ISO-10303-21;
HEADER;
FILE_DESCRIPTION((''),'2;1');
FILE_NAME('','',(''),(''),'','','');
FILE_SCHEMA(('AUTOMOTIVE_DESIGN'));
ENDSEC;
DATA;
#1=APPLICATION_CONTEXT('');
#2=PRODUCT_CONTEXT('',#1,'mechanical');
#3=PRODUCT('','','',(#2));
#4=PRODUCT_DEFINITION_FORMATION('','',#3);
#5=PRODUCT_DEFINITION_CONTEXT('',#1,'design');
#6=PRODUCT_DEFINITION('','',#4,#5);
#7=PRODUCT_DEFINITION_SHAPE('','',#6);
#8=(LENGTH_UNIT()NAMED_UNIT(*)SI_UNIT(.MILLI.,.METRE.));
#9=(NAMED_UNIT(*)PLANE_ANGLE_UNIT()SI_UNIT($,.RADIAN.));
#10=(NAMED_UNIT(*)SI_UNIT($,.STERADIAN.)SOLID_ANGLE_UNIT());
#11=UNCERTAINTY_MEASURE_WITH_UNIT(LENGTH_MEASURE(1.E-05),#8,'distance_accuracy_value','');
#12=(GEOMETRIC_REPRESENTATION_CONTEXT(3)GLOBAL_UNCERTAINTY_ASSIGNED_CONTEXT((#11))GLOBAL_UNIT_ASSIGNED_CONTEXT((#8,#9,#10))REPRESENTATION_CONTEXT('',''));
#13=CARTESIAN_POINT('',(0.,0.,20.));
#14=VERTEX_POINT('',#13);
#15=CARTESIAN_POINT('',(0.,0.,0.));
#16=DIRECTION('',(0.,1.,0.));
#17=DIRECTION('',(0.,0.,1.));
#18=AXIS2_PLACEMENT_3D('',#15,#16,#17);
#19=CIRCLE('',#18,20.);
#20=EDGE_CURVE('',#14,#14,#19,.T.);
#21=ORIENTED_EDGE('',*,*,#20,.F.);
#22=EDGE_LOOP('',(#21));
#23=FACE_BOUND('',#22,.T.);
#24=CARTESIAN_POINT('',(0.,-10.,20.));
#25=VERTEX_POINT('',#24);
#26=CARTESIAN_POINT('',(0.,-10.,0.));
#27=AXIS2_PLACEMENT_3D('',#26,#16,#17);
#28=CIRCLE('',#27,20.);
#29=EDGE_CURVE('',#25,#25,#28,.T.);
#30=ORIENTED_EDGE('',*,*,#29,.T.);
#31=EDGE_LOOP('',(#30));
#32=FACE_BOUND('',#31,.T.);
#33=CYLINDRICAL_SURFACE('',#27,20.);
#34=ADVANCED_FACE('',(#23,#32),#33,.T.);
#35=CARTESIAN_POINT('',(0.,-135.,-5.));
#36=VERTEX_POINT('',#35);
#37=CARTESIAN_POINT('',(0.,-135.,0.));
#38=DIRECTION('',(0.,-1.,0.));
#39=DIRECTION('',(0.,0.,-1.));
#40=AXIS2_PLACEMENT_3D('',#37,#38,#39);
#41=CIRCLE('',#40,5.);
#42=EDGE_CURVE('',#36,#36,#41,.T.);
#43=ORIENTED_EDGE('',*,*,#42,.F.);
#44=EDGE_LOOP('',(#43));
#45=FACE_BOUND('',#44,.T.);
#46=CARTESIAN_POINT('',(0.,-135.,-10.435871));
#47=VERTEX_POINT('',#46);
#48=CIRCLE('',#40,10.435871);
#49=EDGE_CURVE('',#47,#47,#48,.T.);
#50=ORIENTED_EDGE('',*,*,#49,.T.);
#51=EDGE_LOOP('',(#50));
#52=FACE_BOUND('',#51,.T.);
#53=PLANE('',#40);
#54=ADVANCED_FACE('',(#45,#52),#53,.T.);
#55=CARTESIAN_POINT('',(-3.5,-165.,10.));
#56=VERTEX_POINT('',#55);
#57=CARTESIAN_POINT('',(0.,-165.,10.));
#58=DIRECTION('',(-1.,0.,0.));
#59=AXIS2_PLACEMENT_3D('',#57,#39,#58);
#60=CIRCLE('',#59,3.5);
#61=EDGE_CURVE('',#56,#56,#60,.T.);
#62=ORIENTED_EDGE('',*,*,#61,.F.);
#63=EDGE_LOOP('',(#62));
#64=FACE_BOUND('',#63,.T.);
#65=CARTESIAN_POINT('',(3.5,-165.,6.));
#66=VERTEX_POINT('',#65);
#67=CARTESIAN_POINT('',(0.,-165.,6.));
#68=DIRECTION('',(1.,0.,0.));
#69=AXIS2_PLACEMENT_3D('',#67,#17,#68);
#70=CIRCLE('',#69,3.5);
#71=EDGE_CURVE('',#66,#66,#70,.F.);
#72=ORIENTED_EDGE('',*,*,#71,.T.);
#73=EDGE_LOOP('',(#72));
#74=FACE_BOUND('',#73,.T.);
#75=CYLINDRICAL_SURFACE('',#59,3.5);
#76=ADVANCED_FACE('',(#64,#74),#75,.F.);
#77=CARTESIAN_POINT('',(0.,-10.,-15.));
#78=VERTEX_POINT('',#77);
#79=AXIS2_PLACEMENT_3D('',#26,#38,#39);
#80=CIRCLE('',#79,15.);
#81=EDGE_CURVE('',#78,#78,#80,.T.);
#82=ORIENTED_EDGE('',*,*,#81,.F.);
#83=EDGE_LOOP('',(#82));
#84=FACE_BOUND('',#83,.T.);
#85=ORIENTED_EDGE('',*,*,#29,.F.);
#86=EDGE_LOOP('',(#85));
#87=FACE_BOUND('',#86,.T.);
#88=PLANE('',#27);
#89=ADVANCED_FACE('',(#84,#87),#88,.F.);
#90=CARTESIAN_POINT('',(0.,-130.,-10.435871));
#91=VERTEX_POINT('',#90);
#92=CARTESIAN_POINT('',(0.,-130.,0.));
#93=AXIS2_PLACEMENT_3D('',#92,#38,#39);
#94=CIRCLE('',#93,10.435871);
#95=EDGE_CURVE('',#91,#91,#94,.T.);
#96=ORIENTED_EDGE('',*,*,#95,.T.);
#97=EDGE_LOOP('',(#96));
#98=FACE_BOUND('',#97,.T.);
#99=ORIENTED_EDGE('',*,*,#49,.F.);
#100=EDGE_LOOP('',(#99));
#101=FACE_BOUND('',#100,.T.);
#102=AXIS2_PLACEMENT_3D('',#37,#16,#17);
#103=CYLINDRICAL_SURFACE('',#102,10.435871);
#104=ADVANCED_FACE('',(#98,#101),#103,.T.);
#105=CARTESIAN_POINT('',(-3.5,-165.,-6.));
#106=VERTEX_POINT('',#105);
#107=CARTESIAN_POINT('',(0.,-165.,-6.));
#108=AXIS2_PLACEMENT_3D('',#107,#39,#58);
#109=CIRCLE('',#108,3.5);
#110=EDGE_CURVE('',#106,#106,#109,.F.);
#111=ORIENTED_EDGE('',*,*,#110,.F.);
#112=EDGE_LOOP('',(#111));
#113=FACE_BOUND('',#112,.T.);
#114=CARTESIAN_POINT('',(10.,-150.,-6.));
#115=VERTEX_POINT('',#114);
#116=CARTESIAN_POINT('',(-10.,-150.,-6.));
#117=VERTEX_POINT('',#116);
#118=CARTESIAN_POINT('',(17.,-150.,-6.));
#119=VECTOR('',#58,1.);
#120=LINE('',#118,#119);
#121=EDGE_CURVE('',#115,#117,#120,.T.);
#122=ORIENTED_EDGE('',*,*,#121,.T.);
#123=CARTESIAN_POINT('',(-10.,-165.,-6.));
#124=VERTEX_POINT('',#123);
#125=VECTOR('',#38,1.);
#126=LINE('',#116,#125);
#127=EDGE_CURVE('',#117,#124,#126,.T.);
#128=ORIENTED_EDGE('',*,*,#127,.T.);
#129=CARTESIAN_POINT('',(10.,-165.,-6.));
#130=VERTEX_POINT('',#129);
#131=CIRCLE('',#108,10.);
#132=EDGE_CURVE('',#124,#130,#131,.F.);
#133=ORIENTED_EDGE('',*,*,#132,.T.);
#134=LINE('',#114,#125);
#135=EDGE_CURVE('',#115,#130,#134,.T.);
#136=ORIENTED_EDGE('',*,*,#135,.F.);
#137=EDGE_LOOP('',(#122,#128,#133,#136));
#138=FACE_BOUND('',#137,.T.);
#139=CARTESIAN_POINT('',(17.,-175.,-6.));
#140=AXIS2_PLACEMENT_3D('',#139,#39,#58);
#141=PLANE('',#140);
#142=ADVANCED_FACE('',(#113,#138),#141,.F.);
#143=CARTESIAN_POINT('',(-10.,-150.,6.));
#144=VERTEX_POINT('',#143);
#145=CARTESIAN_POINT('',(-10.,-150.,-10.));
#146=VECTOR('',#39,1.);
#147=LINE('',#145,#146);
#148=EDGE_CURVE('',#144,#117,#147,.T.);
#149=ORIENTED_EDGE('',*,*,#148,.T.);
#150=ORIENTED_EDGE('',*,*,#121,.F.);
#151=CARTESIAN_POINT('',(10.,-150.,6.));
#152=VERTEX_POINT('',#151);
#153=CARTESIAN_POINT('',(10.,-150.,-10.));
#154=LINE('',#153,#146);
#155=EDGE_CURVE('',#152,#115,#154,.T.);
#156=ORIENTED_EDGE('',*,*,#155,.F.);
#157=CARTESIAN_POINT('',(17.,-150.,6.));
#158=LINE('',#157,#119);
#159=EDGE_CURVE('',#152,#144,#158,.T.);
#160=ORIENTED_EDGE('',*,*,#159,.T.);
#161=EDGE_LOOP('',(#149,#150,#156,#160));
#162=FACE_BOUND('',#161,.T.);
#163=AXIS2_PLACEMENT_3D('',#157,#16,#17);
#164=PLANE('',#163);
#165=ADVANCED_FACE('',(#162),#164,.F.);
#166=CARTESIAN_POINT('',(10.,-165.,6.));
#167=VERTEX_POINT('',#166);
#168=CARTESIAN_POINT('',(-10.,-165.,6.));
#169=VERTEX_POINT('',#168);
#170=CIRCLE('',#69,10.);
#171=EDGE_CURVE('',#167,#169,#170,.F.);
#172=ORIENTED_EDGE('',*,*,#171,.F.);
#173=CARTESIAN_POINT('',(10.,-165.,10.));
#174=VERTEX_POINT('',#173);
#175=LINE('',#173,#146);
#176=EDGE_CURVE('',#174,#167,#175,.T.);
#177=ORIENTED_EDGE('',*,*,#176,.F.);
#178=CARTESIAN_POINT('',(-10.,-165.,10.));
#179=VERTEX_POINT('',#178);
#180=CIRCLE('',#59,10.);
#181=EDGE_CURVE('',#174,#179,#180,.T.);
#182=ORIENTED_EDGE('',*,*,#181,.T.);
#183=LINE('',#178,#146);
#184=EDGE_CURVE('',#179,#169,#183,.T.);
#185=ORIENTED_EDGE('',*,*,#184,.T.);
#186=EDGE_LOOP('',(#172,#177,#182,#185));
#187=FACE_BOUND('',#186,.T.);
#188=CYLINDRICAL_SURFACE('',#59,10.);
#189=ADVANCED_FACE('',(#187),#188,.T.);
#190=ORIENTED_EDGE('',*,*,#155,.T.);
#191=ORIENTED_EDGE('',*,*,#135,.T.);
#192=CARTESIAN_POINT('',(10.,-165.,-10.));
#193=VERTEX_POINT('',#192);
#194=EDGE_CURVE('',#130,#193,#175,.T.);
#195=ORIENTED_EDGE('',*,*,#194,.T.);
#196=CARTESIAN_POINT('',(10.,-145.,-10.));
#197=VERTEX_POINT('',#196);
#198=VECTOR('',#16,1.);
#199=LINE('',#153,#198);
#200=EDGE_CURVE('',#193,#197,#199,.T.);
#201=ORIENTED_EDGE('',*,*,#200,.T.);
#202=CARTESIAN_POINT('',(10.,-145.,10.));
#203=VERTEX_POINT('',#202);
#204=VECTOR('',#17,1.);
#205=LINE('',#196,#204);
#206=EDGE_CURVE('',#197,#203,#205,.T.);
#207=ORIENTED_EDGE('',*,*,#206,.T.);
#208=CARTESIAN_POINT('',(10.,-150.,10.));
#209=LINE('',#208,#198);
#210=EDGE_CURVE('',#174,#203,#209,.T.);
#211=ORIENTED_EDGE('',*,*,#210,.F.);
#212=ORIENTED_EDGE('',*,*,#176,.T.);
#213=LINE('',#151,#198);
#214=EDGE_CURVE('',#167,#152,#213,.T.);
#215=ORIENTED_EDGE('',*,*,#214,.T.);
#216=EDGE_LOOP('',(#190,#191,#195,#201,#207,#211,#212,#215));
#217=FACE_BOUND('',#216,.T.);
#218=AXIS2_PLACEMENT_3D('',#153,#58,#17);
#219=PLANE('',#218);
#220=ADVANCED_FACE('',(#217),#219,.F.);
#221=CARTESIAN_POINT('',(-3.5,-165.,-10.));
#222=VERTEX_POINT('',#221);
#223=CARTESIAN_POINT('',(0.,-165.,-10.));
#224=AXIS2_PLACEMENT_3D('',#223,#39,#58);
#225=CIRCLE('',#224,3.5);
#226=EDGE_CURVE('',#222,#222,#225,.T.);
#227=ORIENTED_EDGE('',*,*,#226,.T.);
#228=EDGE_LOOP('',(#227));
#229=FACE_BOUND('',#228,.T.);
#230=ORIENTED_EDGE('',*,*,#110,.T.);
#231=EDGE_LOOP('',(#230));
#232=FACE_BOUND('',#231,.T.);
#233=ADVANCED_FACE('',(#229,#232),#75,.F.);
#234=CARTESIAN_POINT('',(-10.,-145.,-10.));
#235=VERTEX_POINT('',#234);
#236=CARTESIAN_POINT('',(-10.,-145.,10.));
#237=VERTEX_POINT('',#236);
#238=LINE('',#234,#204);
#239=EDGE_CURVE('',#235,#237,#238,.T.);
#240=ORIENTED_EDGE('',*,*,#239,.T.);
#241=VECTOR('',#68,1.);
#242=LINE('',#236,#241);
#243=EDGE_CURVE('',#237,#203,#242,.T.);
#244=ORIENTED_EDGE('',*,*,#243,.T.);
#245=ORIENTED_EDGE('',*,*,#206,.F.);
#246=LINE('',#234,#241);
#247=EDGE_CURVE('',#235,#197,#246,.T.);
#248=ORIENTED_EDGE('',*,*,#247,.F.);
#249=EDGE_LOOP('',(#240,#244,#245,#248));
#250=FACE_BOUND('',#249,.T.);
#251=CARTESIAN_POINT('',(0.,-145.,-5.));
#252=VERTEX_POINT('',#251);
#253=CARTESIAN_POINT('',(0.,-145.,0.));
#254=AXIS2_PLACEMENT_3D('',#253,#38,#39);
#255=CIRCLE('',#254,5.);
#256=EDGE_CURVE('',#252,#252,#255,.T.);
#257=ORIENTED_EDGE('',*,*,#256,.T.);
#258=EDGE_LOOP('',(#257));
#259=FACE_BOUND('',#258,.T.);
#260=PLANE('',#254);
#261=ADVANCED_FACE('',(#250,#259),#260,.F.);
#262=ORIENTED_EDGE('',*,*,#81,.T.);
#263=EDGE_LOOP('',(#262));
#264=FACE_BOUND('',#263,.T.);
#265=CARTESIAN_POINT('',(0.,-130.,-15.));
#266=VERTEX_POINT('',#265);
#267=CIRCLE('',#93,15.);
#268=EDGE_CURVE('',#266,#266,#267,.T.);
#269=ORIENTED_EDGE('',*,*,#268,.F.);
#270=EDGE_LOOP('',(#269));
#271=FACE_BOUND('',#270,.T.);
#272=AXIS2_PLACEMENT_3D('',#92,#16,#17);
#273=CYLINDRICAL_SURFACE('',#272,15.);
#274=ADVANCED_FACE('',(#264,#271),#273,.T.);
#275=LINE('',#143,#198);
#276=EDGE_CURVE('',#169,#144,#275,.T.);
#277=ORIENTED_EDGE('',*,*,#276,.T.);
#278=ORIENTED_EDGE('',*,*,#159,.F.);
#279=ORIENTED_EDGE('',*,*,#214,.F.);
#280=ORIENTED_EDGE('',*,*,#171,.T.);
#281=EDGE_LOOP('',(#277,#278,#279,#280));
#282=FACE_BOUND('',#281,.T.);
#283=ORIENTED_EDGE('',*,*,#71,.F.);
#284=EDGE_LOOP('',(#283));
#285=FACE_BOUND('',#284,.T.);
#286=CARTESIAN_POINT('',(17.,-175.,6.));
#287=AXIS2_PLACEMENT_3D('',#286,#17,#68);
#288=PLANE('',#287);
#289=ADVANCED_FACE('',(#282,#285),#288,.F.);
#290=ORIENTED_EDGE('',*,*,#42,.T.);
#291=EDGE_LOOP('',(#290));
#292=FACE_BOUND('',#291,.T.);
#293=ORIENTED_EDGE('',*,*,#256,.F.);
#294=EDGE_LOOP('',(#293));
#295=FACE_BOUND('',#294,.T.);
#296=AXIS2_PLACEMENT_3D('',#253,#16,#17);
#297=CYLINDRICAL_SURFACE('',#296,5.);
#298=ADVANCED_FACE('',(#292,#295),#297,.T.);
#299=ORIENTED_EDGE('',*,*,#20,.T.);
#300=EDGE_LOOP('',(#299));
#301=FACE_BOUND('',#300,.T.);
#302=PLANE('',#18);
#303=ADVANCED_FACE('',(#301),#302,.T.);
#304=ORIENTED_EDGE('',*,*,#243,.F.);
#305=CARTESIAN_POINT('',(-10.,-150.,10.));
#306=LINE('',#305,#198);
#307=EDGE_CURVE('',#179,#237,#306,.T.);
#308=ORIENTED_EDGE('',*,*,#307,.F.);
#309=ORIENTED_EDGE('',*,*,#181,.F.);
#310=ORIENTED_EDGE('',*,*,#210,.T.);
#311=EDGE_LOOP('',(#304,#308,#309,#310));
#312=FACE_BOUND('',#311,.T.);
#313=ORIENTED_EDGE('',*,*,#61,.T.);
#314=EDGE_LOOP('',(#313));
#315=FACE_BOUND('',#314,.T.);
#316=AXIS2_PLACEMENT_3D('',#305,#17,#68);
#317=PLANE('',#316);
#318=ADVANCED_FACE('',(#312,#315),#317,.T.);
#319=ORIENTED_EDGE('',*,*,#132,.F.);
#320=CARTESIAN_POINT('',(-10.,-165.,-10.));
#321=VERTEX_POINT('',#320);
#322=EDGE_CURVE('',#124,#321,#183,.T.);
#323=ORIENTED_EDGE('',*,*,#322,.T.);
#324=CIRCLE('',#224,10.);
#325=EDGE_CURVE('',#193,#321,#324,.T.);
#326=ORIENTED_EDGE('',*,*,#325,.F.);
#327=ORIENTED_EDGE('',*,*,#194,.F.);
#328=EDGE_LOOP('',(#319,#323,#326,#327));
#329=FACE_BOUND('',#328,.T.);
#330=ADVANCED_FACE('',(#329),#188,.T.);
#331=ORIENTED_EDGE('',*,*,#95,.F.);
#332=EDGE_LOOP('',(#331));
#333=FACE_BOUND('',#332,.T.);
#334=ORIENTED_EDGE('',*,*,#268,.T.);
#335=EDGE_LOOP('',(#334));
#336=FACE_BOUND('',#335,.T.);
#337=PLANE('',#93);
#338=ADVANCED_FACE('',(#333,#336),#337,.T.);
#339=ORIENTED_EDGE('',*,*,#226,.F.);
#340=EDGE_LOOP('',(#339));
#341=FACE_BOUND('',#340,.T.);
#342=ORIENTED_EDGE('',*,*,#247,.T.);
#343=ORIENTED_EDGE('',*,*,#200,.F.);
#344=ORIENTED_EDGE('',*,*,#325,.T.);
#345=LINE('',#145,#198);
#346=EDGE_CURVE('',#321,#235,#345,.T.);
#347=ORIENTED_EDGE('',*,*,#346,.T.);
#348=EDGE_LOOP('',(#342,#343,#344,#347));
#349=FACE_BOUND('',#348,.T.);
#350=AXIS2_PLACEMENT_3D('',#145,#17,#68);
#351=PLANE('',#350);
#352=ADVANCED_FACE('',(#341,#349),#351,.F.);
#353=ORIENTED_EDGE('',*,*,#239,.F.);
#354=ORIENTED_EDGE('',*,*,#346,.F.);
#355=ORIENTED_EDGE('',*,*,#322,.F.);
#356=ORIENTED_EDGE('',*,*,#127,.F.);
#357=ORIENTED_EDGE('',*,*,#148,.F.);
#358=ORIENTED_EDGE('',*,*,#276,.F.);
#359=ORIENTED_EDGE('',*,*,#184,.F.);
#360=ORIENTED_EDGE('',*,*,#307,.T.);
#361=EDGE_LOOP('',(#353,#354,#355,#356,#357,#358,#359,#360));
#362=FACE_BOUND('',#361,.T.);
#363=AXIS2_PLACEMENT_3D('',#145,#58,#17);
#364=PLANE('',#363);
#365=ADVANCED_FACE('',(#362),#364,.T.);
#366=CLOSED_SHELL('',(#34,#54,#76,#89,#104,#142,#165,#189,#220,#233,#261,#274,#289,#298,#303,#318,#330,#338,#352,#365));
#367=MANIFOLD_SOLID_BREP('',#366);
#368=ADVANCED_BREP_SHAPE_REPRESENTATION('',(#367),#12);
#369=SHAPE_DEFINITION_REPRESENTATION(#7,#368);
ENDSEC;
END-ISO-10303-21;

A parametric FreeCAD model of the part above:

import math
import FreeCAD as App
import Part
import Sketcher

V = App.Vector
Q = App.Units.Quantity


def add_polygon(sketch, points):
    """Adds a closed chain of lines whose ends are joined by coincident constraints."""
    first, n = sketch.GeometryCount, len(points)
    for a, b in zip(points, points[1:] + points[:1]):
        sketch.addGeometry(Part.LineSegment(App.Vector(*a, 0), App.Vector(*b, 0)), False)
    for i in range(n):
        sketch.addConstraint(Sketcher.Constraint("Coincident", first + i, 2, first + (i + 1) % n, 1))

doc = App.newDocument("Part")
body = doc.addObject("PartDesign::Body", "Body")

sketch1 = body.newObject("Sketcher::SketchObject", "Sketch")
sketch1.AttachmentSupport = (doc.getObject("XZ_Plane"), [""])
sketch1.MapMode = "FlatFace"
sketch1.addGeometry(Part.Circle(V(0, 0, 0), V(0, 0, 1), 20), False)
sketch1.addConstraint(Sketcher.Constraint("Coincident", 0, 3, -1, 1))
sketch1.addConstraint(Sketcher.Constraint("Diameter", 0, Q("40 mm")))
pad1 = body.newObject("PartDesign::Pad", "Pad")
pad1.Profile = sketch1
pad1.Length = 10

sketch2 = body.newObject("Sketcher::SketchObject", "Sketch001")
sketch2.AttachmentSupport = (doc.getObject("XZ_Plane"), [""])
sketch2.MapMode = "FlatFace"
sketch2.AttachmentOffset = App.Placement(V(0, 0, 10), App.Rotation())
sketch2.addGeometry(Part.Circle(V(0, 0, 0), V(0, 0, 1), 15), False)
sketch2.addConstraint(Sketcher.Constraint("Coincident", 0, 3, -1, 1))
sketch2.addConstraint(Sketcher.Constraint("Diameter", 0, Q("30 mm")))
pad2 = body.newObject("PartDesign::Pad", "Pad001")
pad2.Profile = sketch2
pad2.Length = 120

sketch3 = body.newObject("Sketcher::SketchObject", "Sketch002")
sketch3.AttachmentSupport = (doc.getObject("XZ_Plane"), [""])
sketch3.MapMode = "FlatFace"
sketch3.AttachmentOffset = App.Placement(V(0, 0, 130), App.Rotation())
sketch3.addGeometry(Part.Circle(V(0, 0, 0), V(0, 0, 1), 10), False)
sketch3.addConstraint(Sketcher.Constraint("Coincident", 0, 3, -1, 1))
sketch3.addConstraint(Sketcher.Constraint("Diameter", 0, Q("20.871742 mm")))
pad3 = body.newObject("PartDesign::Pad", "Pad002")
pad3.Profile = sketch3
pad3.Length = 5

sketch4 = body.newObject("Sketcher::SketchObject", "Sketch003")
sketch4.AttachmentSupport = (doc.getObject("XZ_Plane"), [""])
sketch4.MapMode = "FlatFace"
sketch4.AttachmentOffset = App.Placement(V(0, 0, 135), App.Rotation())
sketch4.addGeometry(Part.Circle(V(0, 0, 0), V(0, 0, 1), 5), False)
sketch4.addConstraint(Sketcher.Constraint("Coincident", 0, 3, -1, 1))
sketch4.addConstraint(Sketcher.Constraint("Diameter", 0, Q("10 mm")))
pad4 = body.newObject("PartDesign::Pad", "Pad003")
pad4.Profile = sketch4
pad4.Length = 10

sketch5 = body.newObject("Sketcher::SketchObject", "Sketch004")
sketch5.AttachmentSupport = (doc.getObject("XZ_Plane"), [""])
sketch5.MapMode = "FlatFace"
sketch5.AttachmentOffset = App.Placement(V(0, 0, 145), App.Rotation())
add_polygon(sketch5, [(-10, 10), (-10, -10), (10, -10), (10, 10)])
sketch5.addConstraint(Sketcher.Constraint("Vertical", 0))
sketch5.addConstraint(Sketcher.Constraint("Horizontal", 1))
sketch5.addConstraint(Sketcher.Constraint("Vertical", 2))
sketch5.addConstraint(Sketcher.Constraint("Horizontal", 3))
sketch5.addConstraint(Sketcher.Constraint("Symmetric", 0, 2, 2, 2, -1, 1))
sketch5.addConstraint(Sketcher.Constraint("Equal", 3, 0))
sketch5.addConstraint(Sketcher.Constraint("DistanceX", 1, 1, 1, 2, Q("20 mm")))
pad5 = body.newObject("PartDesign::Pad", "Pad004")
pad5.Profile = sketch5
pad5.Length = 5

sketch6 = body.newObject("Sketcher::SketchObject", "Sketch005")
sketch6.AttachmentSupport = (doc.getObject("XY_Plane"), [""])
sketch6.MapMode = "FlatFace"
sketch6.AttachmentOffset = App.Placement(V(0, 0, -10), App.Rotation())
sketch6.addGeometry(Part.LineSegment(V(10, -150, 0), V(10, -165, 0)), False)
sketch6.addGeometry(Part.ArcOfCircle(Part.Circle(V(0, -165, 0), V(0, 0, 1), 10), math.radians(180), math.radians(360)), False)
sketch6.addGeometry(Part.LineSegment(V(-10, -165, 0), V(-10, -150, 0)), False)
sketch6.addGeometry(Part.LineSegment(V(-10, -150, 0), V(10, -150, 0)), False)
sketch6.addGeometry(Part.Circle(V(0, -165, 0), V(0, 0, 1), 3.5), False)
sketch6.addConstraint(Sketcher.Constraint("Tangent", 0, 2, 1, 2))
sketch6.addConstraint(Sketcher.Constraint("Tangent", 1, 1, 2, 1))
sketch6.addConstraint(Sketcher.Constraint("Coincident", 2, 2, 3, 1))
sketch6.addConstraint(Sketcher.Constraint("Coincident", 3, 2, 0, 1))
sketch6.addConstraint(Sketcher.Constraint("Vertical", 0))
sketch6.addConstraint(Sketcher.Constraint("Vertical", 2))
sketch6.addConstraint(Sketcher.Constraint("Horizontal", 3))
sketch6.addConstraint(Sketcher.Constraint("Coincident", 4, 3, 1, 3))
sketch6.addConstraint(Sketcher.Constraint("PointOnObject", 1, 3, -2))
sketch6.addConstraint(Sketcher.Constraint("Diameter", 4, Q("7 mm")))
sketch6.addConstraint(Sketcher.Constraint("Radius", 1, Q("10 mm")))
sketch6.addConstraint(Sketcher.Constraint("DistanceY", 0, 2, 0, 1, Q("15 mm")))
sketch6.addConstraint(Sketcher.Constraint("DistanceY", 1, 3, -1, 1, Q("165 mm")))
pad6 = body.newObject("PartDesign::Pad", "Pad005")
pad6.Profile = sketch6
pad6.Length = 20

sketch7 = body.newObject("Sketcher::SketchObject", "Sketch006")
sketch7.AttachmentSupport = (doc.getObject("YZ_Plane"), [""])
sketch7.MapMode = "FlatFace"
sketch7.AttachmentOffset = App.Placement(V(0, 0, -10), App.Rotation())
add_polygon(sketch7, [(-150, -6), (-175, -6), (-175, 6), (-150, 6)])
sketch7.addConstraint(Sketcher.Constraint("Horizontal", 0))
sketch7.addConstraint(Sketcher.Constraint("Vertical", 1))
sketch7.addConstraint(Sketcher.Constraint("Horizontal", 2))
sketch7.addConstraint(Sketcher.Constraint("Vertical", 3))
sketch7.addConstraint(Sketcher.Constraint("DistanceX", 0, 2, 0, 1, Q("25 mm")))
sketch7.addConstraint(Sketcher.Constraint("DistanceY", 1, 1, 1, 2, Q("12 mm")))
sketch7.addConstraint(Sketcher.Constraint("DistanceX", 0, 2, -1, 1, Q("175 mm")))
sketch7.addConstraint(Sketcher.Constraint("DistanceY", 0, 2, -1, 1, Q("6 mm")))
pocket1 = body.newObject("PartDesign::Pocket", "Pocket")
pocket1.Profile = sketch7
pocket1.Length = 54
pocket1.Midplane = True

doc.recompute()
